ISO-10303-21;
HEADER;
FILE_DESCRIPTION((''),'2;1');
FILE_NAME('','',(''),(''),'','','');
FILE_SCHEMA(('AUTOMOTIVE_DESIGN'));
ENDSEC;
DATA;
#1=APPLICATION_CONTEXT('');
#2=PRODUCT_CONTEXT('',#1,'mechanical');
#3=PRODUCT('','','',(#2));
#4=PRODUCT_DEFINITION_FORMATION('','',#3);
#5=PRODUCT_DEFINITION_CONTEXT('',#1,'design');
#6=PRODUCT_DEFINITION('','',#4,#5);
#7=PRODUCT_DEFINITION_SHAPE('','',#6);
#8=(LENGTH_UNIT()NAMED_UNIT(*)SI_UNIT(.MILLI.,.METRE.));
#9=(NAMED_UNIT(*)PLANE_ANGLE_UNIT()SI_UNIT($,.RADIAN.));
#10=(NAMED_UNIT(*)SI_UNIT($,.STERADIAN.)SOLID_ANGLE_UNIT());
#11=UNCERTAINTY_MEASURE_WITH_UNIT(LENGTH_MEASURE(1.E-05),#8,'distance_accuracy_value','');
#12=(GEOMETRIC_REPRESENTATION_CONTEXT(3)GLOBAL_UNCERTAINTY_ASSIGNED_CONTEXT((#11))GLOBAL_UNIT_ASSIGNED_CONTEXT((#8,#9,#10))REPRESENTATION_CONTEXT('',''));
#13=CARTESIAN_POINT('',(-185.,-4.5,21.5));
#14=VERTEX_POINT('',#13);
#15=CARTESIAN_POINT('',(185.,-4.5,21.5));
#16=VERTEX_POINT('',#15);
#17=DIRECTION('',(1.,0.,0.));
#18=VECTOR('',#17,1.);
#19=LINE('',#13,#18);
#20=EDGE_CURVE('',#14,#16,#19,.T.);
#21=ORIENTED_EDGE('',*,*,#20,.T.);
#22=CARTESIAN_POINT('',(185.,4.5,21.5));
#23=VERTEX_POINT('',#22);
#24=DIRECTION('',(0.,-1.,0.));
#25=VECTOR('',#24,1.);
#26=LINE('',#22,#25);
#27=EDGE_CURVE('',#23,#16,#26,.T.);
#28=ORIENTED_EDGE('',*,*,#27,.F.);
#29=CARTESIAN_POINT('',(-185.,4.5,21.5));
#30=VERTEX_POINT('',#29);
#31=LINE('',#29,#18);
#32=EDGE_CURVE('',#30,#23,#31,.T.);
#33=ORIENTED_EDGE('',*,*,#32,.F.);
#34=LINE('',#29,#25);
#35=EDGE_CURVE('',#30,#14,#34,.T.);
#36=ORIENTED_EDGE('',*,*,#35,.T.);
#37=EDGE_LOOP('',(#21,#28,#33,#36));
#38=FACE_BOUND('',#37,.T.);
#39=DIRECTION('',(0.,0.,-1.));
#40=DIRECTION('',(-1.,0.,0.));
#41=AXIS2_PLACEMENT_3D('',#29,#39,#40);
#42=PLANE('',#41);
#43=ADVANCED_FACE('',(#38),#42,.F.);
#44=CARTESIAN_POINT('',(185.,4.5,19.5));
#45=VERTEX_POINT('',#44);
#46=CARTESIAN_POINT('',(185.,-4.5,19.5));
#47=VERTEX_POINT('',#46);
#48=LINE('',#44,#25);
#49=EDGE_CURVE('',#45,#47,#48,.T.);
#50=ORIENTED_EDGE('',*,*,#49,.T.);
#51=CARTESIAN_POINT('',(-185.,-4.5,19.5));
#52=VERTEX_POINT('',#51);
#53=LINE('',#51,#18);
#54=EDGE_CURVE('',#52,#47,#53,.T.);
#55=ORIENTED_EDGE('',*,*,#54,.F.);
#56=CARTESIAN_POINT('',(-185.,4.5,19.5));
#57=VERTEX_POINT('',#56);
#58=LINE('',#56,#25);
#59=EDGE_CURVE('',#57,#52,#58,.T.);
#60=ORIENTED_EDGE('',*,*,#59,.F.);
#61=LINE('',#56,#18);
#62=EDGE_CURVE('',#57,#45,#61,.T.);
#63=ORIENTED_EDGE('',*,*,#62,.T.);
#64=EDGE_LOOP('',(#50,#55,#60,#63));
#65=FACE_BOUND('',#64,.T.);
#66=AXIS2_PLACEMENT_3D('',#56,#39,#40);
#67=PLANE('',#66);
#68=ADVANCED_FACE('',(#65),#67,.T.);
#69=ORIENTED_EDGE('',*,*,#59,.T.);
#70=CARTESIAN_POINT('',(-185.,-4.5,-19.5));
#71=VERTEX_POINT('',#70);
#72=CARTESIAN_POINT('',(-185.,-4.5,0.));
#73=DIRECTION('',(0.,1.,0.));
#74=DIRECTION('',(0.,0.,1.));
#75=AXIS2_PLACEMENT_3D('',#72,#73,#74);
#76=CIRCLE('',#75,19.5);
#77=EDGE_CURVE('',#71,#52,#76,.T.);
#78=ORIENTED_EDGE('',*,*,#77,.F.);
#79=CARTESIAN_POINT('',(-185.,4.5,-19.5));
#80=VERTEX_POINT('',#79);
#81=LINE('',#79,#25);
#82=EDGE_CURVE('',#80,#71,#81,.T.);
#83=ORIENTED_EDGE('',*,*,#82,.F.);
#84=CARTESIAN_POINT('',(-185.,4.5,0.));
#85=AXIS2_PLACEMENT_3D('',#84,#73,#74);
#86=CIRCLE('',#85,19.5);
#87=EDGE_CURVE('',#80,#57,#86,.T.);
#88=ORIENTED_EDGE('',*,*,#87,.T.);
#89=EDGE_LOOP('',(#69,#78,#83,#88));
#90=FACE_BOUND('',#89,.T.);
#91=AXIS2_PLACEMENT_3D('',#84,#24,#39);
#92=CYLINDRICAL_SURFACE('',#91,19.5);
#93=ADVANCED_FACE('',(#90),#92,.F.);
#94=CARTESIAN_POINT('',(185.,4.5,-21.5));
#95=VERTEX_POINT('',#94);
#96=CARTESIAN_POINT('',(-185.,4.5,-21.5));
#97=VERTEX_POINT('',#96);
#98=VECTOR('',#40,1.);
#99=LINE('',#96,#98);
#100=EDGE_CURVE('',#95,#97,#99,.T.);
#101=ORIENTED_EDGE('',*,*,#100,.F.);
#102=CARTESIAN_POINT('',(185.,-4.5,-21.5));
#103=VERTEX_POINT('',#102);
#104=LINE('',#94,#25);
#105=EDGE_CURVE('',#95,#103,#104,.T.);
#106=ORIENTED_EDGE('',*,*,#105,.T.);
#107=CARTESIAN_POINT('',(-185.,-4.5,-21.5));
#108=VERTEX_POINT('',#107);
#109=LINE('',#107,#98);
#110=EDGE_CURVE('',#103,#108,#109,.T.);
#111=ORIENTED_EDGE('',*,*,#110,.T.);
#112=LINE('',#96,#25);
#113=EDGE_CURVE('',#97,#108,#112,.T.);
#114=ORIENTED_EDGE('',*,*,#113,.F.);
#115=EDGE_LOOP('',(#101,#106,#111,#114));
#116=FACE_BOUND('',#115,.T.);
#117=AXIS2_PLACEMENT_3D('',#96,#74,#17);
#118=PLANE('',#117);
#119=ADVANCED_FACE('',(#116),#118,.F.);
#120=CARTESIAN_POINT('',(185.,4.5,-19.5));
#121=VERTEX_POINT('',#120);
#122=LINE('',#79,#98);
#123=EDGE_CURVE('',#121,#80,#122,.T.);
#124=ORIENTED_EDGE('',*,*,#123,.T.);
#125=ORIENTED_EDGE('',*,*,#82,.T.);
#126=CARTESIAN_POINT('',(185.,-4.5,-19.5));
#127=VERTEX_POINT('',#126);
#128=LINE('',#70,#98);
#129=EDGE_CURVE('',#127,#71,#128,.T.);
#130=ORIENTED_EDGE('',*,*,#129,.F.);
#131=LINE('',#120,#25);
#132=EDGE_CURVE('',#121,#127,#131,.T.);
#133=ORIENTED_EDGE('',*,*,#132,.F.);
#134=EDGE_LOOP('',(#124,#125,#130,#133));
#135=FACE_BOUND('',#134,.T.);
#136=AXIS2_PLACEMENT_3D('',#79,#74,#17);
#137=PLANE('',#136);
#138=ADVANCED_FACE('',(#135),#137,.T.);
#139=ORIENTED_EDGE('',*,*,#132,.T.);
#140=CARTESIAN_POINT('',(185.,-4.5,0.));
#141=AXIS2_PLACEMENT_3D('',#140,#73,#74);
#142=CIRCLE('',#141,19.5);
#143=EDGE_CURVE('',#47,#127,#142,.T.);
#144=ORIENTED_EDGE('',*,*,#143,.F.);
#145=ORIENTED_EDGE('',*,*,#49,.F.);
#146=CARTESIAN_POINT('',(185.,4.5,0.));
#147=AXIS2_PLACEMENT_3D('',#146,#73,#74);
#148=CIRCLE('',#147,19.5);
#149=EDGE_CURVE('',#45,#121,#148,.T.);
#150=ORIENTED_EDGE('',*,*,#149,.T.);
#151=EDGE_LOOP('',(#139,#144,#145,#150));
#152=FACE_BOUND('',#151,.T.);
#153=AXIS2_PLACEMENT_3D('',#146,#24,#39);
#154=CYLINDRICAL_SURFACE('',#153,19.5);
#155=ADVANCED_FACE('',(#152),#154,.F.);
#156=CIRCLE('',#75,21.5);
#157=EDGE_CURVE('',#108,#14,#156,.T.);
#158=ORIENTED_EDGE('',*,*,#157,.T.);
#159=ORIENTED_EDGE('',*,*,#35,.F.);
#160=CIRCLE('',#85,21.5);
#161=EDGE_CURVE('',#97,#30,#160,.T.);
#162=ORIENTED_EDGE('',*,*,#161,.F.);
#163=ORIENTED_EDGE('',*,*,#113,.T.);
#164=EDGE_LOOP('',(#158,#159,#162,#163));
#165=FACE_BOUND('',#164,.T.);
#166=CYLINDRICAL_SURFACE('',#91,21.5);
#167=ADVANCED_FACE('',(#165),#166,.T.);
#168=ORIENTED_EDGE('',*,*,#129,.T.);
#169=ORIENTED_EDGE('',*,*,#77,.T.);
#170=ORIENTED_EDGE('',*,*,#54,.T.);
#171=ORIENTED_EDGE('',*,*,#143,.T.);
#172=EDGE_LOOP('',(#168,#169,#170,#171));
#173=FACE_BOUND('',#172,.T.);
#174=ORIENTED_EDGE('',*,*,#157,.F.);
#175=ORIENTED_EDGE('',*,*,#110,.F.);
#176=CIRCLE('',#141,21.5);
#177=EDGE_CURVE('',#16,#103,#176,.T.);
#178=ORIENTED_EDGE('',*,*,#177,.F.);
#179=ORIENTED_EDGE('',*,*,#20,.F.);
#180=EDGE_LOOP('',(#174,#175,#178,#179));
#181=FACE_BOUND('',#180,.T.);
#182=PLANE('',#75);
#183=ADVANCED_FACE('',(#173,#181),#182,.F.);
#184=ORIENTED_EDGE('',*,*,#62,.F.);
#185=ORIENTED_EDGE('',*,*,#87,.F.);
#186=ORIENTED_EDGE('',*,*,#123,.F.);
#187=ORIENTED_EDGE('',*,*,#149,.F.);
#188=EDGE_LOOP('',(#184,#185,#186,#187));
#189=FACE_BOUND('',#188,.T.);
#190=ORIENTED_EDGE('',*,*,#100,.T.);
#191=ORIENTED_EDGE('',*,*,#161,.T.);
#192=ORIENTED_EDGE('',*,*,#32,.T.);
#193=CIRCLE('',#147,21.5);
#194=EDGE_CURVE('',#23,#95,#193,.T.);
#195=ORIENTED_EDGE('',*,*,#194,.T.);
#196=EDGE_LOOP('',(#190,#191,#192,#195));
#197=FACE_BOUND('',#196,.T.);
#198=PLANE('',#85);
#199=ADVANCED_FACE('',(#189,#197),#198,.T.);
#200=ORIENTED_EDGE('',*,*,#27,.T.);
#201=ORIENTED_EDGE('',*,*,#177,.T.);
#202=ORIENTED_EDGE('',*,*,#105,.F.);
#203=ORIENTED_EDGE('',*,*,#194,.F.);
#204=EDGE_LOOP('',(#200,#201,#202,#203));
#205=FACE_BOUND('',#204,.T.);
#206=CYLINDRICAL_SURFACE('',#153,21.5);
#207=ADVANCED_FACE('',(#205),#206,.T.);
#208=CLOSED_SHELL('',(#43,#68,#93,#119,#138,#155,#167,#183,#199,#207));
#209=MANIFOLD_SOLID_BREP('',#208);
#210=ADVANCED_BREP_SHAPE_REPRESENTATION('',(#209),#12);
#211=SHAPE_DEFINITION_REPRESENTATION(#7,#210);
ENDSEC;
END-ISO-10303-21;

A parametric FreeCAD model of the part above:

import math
import FreeCAD as App
import Part
import Sketcher

V = App.Vector
Q = App.Units.Quantity

doc = App.newDocument("Part")
body = doc.addObject("PartDesign::Body", "Body")

sketch1 = body.newObject("Sketcher::SketchObject", "Sketch")
sketch1.AttachmentSupport = (doc.getObject("XZ_Plane"), [""])
sketch1.MapMode = "FlatFace"
sketch1.addGeometry(Part.LineSegment(V(185, -22, 0), V(-185, -22, 0)), False)
sketch1.addGeometry(Part.ArcOfCircle(Part.Circle(V(-185, 0, 0), V(0, 0, 1), 22), math.radians(90), math.radians(270)), False)
sketch1.addGeometry(Part.LineSegment(V(-185, 22, 0), V(185, 22, 0)), False)
sketch1.addGeometry(Part.ArcOfCircle(Part.Circle(V(185, 0, 0), V(0, 0, 1), 22), math.radians(-90), math.radians(90)), False)
sketch1.addGeometry(Part.LineSegment(V(-185, -20, 0), V(185, -20, 0)), False)
sketch1.addGeometry(Part.ArcOfCircle(Part.Circle(V(185, 0, 0), V(0, 0, 1), 20), math.radians(-90), math.radians(90)), False)
sketch1.addGeometry(Part.LineSegment(V(185, 20, 0), V(-185, 20, 0)), False)
sketch1.addGeometry(Part.ArcOfCircle(Part.Circle(V(-185, 0, 0), V(0, 0, 1), 20), math.radians(90), math.radians(270)), False)
sketch1.addConstraint(Sketcher.Constraint("Tangent", 0, 2, 1, 2))
sketch1.addConstraint(Sketcher.Constraint("Tangent", 1, 1, 2, 1))
sketch1.addConstraint(Sketcher.Constraint("Tangent", 2, 2, 3, 2))
sketch1.addConstraint(Sketcher.Constraint("Tangent", 3, 1, 0, 1))
sketch1.addConstraint(Sketcher.Constraint("Tangent", 4, 2, 5, 1))
sketch1.addConstraint(Sketcher.Constraint("Tangent", 5, 2, 6, 1))
sketch1.addConstraint(Sketcher.Constraint("Tangent", 6, 2, 7, 1))
sketch1.addConstraint(Sketcher.Constraint("Tangent", 7, 2, 4, 1))
sketch1.addConstraint(Sketcher.Constraint("Horizontal", 0))
sketch1.addConstraint(Sketcher.Constraint("Horizontal", 2))
sketch1.addConstraint(Sketcher.Constraint("Horizontal", 4))
sketch1.addConstraint(Sketcher.Constraint("Horizontal", 6))
sketch1.addConstraint(Sketcher.Constraint("Coincident", 5, 3, 3, 3))
sketch1.addConstraint(Sketcher.Constraint("Symmetric", 1, 3, 3, 3, -1, 1))
sketch1.addConstraint(Sketcher.Constraint("Vertical", 7, 3, 0, 2))
sketch1.addConstraint(Sketcher.Constraint("Radius", 1, Q("21.5 mm")))
sketch1.addConstraint(Sketcher.Constraint("Radius", 5, Q("19.5 mm")))
sketch1.addConstraint(Sketcher.Constraint("DistanceX", 0, 2, 0, 1, Q("370 mm")))
pad1 = body.newObject("PartDesign::Pad", "Pad")
pad1.Profile = sketch1
pad1.Length = 9
pad1.Midplane = True

doc.recompute()
